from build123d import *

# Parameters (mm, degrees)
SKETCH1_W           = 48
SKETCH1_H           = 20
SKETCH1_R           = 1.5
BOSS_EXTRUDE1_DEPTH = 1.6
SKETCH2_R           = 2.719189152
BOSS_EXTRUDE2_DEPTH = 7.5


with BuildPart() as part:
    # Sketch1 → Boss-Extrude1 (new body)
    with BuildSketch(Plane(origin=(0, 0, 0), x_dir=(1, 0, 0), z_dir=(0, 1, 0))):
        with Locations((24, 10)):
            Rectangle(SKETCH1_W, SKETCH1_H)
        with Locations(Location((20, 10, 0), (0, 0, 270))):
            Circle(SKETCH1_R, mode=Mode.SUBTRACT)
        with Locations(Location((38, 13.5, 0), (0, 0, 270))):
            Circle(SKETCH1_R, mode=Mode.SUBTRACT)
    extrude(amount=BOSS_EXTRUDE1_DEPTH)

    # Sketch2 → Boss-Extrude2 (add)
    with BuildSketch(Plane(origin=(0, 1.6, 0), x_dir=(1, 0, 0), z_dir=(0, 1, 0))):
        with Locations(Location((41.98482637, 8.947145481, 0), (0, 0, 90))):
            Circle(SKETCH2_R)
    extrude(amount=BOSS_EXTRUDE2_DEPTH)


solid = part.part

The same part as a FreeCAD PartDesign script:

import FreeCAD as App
import Part
import Sketcher
Q = App.Units.Quantity

doc = App.newDocument("Part")
params = doc.addObject("Spreadsheet::Sheet", "Params")
for row, (alias, value) in enumerate([
    ("sketch1_diameter", "3 mm"),
    ("sketch1_width", "48 mm"),
    ("sketch1_height", "20 mm"),
    ("pad1_length", "1.6 mm"),
    ("pad2_length", "7.5 mm"),
], start=1):
    params.set(f"A{row}", alias)
    params.set(f"B{row}", "=" + value)
    params.setAlias(f"B{row}", alias)

body = doc.addObject("PartDesign::Body", "Body")

# Sketch on XZ plane
sketch1 = body.newObject("Sketcher::SketchObject", "Sketch")
sketch1.AttachmentSupport = (doc.getObject("XZ_Plane"), [""])
sketch1.MapMode = "FlatFace"
sketch1.addGeometry([
    Part.LineSegment(App.Vector(0, -20, 0), App.Vector(0, 0, 0)),  # 0
    Part.LineSegment(App.Vector(0, 0, 0), App.Vector(48, 0, 0)),  # 1
    Part.LineSegment(App.Vector(48, 0, 0), App.Vector(48, -20, 0)),  # 2
    Part.LineSegment(App.Vector(48, -20, 0), App.Vector(0, -20, 0)),  # 3
    Part.Circle(App.Vector(20, -10, 0), App.Vector(0, 0, 1), 1.5),  # 4
    Part.Circle(App.Vector(38, -13.5, 0), App.Vector(0, 0, 1), 1.5),  # 5
], False)
sketch1.addConstraint([
    Sketcher.Constraint("Coincident", 0, 2, 1, 1),
    Sketcher.Constraint("Coincident", 1, 2, 2, 1),
    Sketcher.Constraint("Coincident", 2, 2, 3, 1),
    Sketcher.Constraint("Coincident", 3, 2, 0, 1),
    Sketcher.Constraint("Vertical", 0),
    Sketcher.Constraint("Horizontal", 1),
    Sketcher.Constraint("Vertical", 2),
    Sketcher.Constraint("Horizontal", 3),
    Sketcher.Constraint("Coincident", 0, 2, -1, 1),
    Sketcher.Constraint("Equal", 4, 5),
    Sketcher.Constraint("Diameter", 4, Q("3 mm")),
    Sketcher.Constraint("DistanceX", 1, 1, 1, 2, Q("48 mm")),
    Sketcher.Constraint("DistanceY", 0, 1, 0, 2, Q("20 mm")),
    Sketcher.Constraint("DistanceX", -1, 1, 4, 3, Q("20 mm")),
    Sketcher.Constraint("DistanceY", 4, 3, -1, 1, Q("10 mm")),
    Sketcher.Constraint("DistanceX", -1, 1, 5, 3, Q("38 mm")),
    Sketcher.Constraint("DistanceY", 5, 3, -1, 1, Q("13.5 mm")),
])
sketch1.setExpression("Constraints[10]", "Params.sketch1_diameter")
sketch1.setExpression("Constraints[11]", "Params.sketch1_width")
sketch1.setExpression("Constraints[12]", "Params.sketch1_height")
pad1 = body.newObject("PartDesign::Pad", "Pad")
pad1.Profile = sketch1
pad1.setExpression("Length", "Params.pad1_length")
pad1.Reversed = True

# Sketch on XZ plane
sketch2 = body.newObject("Sketcher::SketchObject", "Sketch001")
sketch2.AttachmentSupport = (doc.getObject("XZ_Plane"), [""])
sketch2.MapMode = "FlatFace"
sketch2.AttachmentOffset = App.Placement(App.Vector(0, 0, -1.6), App.Rotation())
sketch2.addGeometry(Part.Circle(App.Vector(42, -8.9, 0), App.Vector(0, 0, 1), 2.7), False)
sketch2.addConstraint([
    Sketcher.Constraint("Diameter", 0, Q("5.438378 mm")),
    Sketcher.Constraint("DistanceX", -1, 1, 0, 3, Q("41.984826 mm")),
    Sketcher.Constraint("DistanceY", 0, 3, -1, 1, Q("8.947145 mm")),
])
pad2 = body.newObject("PartDesign::Pad", "Pad001")
pad2.Profile = sketch2
pad2.setExpression("Length", "Params.pad2_length")
pad2.Reversed = True

doc.recompute()
